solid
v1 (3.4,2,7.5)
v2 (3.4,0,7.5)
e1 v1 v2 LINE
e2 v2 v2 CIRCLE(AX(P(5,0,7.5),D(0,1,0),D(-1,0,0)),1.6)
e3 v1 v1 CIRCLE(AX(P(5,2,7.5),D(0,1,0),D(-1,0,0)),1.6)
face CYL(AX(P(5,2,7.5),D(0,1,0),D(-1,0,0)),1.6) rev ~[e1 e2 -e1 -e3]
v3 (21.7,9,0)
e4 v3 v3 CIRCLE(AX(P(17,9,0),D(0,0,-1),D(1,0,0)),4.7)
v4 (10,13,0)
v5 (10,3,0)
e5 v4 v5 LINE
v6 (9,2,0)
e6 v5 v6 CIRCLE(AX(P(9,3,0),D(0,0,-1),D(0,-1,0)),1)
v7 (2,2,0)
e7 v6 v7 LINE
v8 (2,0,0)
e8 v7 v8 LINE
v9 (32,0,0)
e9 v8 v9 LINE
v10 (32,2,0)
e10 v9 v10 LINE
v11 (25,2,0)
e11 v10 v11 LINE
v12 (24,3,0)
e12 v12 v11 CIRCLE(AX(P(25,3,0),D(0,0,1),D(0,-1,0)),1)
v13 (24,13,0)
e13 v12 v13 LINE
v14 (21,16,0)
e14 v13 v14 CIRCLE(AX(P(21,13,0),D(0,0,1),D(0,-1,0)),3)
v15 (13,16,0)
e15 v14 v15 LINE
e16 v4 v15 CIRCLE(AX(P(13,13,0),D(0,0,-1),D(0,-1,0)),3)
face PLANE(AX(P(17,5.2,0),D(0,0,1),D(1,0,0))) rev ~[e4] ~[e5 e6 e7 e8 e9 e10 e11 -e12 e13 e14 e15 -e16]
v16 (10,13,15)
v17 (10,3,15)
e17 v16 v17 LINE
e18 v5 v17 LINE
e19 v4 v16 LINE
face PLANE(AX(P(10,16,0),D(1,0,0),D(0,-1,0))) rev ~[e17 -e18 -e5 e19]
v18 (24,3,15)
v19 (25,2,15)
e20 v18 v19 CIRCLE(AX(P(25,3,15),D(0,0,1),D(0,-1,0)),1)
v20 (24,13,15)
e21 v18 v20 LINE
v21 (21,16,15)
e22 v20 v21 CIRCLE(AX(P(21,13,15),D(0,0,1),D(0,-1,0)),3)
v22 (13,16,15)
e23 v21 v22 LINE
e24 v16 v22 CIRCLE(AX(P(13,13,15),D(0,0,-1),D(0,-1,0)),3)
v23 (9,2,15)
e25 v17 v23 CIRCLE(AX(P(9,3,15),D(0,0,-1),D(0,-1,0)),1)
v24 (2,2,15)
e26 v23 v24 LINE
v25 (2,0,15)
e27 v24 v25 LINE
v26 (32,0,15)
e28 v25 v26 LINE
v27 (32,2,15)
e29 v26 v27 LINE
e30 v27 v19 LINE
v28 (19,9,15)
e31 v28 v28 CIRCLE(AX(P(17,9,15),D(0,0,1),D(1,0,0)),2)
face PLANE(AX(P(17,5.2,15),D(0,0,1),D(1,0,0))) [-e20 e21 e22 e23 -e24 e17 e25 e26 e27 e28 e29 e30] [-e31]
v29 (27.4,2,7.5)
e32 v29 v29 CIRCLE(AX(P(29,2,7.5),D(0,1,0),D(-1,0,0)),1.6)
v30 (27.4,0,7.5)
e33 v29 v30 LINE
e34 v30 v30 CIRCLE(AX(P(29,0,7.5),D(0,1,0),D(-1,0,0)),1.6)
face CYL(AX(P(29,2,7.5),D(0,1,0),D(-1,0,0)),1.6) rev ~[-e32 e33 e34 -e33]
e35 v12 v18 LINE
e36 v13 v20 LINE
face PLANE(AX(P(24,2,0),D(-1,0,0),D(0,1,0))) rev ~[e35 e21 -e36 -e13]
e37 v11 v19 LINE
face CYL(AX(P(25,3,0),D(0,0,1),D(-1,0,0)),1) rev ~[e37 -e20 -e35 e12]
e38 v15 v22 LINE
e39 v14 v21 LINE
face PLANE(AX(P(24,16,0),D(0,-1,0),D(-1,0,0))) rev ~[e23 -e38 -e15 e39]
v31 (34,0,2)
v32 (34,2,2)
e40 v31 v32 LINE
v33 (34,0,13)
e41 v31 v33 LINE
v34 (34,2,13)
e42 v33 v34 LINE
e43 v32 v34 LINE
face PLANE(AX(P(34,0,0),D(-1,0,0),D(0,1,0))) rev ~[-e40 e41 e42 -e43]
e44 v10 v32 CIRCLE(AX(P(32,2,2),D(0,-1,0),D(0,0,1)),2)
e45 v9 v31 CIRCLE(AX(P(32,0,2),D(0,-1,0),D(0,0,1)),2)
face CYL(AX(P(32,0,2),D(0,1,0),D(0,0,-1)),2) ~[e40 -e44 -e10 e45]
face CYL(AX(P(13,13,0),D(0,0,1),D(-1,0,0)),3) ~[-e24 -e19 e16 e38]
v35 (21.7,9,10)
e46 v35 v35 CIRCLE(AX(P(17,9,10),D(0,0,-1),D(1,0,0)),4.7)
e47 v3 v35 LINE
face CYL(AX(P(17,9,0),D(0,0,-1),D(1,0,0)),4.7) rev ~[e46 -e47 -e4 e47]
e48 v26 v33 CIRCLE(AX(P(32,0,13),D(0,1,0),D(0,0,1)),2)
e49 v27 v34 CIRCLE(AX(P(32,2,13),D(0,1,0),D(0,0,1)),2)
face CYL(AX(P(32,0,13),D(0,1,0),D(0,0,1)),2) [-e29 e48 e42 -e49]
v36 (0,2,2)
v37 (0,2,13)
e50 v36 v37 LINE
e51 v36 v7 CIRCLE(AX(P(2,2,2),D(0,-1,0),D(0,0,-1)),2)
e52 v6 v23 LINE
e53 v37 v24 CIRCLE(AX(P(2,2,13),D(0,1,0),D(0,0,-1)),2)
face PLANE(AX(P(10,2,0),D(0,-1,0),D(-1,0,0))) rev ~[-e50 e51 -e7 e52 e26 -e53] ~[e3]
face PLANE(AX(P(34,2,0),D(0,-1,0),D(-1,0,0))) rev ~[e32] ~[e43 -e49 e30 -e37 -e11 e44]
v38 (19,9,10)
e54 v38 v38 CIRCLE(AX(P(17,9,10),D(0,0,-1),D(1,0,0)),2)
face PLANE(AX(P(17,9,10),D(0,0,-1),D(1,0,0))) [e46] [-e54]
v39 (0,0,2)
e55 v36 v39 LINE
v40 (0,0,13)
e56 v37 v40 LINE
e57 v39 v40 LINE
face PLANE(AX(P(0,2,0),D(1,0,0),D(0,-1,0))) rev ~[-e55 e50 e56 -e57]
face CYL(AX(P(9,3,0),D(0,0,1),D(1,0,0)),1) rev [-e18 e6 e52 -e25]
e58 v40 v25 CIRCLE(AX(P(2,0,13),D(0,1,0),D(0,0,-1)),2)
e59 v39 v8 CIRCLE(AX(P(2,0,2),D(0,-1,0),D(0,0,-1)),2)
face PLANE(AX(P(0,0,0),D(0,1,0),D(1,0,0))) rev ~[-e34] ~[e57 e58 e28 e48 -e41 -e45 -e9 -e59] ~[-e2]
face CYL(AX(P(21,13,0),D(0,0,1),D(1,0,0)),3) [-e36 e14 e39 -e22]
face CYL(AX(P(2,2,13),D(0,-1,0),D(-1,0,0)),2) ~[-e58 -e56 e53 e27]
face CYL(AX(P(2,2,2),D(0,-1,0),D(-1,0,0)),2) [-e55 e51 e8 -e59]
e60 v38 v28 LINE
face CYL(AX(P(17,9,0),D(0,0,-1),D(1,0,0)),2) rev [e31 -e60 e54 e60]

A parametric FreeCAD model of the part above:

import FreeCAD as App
import Part
import Sketcher

V = App.Vector


def edges_at(feature, points):
    """Names of the edges that pass closest to the given points."""
    edges = feature.Shape.Edges
    near = lambda p: min(range(len(edges)), key=lambda i: edges[i].distToShape(Part.Vertex(*p))[0])
    return sorted({f"Edge{near(p) + 1}" for p in points})


def add_polygon(sketch, points):
    """Adds a closed chain of lines whose ends are joined by coincident constraints."""
    first, n = sketch.GeometryCount, len(points)
    for a, b in zip(points, points[1:] + points[:1]):
        sketch.addGeometry(Part.LineSegment(App.Vector(*a, 0), App.Vector(*b, 0)), False)
    for i in range(n):
        sketch.addConstraint(Sketcher.Constraint("Coincident", first + i, 2, first + (i + 1) % n, 1))

doc = App.newDocument("Part")
body = doc.addObject("PartDesign::Body", "Body")

# Sketch on XY plane
sketch1 = body.newObject("Sketcher::SketchObject", "Sketch")
sketch1.AttachmentSupport = (doc.getObject("XY_Plane"), [""])
sketch1.MapMode = "FlatFace"
add_polygon(sketch1, [(0, 0), (34, 0), (34, 2), (24, 2), (24, 16), (10, 16), (10, 2), (0, 2)])  # lines 0-7
sketch1.addGeometry(Part.Circle(V(17, 9, 0), V(0, 0, 1), 2), False)  # 8
sketch1.addConstraint([
    Sketcher.Constraint("Horizontal", 0),
    Sketcher.Constraint("Vertical", 1),
    Sketcher.Constraint("Horizontal", 2),
    Sketcher.Constraint("Vertical", 3),
    Sketcher.Constraint("Horizontal", 4),
    Sketcher.Constraint("Vertical", 5),
    Sketcher.Constraint("Horizontal", 6),
    Sketcher.Constraint("Vertical", 7),
    Sketcher.Constraint("Coincident", 7, 2, -1, 1),
    Sketcher.Constraint("Horizontal", 2, 2, 5, 2),
    Sketcher.Constraint("Equal", 2, 6),
    Sketcher.Constraint("Equal", 4, 3),
    Sketcher.Constraint("Diameter", 8, 4.0),
    Sketcher.Constraint("DistanceX", 0, 1, 0, 2, 34.0),
    Sketcher.Constraint("DistanceX", 2, 2, 2, 1, 10.0),
    Sketcher.Constraint("DistanceY", 1, 1, 1, 2, 2.0),
    Sketcher.Constraint("DistanceX", -1, 1, 8, 3, 17.0),
    Sketcher.Constraint("DistanceY", -1, 1, 8, 3, 9.0),
])
pad1 = body.newObject("PartDesign::Pad", "Pad")
pad1.Profile = sketch1
pad1.Length = 15

# Sketch on XY plane
sketch2 = body.newObject("Sketcher::SketchObject", "Sketch001")
sketch2.AttachmentSupport = (doc.getObject("XY_Plane"), [""])
sketch2.MapMode = "FlatFace"
sketch2.addGeometry(Part.Circle(V(17, 9, 0), V(0, 0, 1), 4.7), False)
sketch2.addConstraint([
    Sketcher.Constraint("Diameter", 0, 9.4),
    Sketcher.Constraint("DistanceX", -1, 1, 0, 3, 17.0),
    Sketcher.Constraint("DistanceY", -1, 1, 0, 3, 9.0),
])
pocket1 = body.newObject("PartDesign::Pocket", "Pocket")
pocket1.Profile = sketch2
pocket1.Length = 10
pocket1.Reversed = True

# Sketch on XZ plane
sketch3 = body.newObject("Sketcher::SketchObject", "Sketch002")
sketch3.AttachmentSupport = (doc.getObject("XZ_Plane"), [""])
sketch3.MapMode = "FlatFace"
sketch3.AttachmentOffset = App.Placement(V(0, 0, -2), App.Rotation())
sketch3.addGeometry([
    Part.Circle(V(29, 7.5, 0), V(0, 0, 1), 1.6),
    Part.Circle(V(5, 7.5, 0), V(0, 0, 1), 1.6),
], False)
sketch3.addConstraint([
    Sketcher.Constraint("Equal", 0, 1),
    Sketcher.Constraint("Horizontal", 0, 3, 1, 3),
    Sketcher.Constraint("Diameter", 0, 3.2),
    Sketcher.Constraint("DistanceX", -1, 1, 0, 3, 29.0),
    Sketcher.Constraint("DistanceX", -1, 1, 1, 3, 5.0),
    Sketcher.Constraint("DistanceY", -1, 1, 0, 3, 7.5),
])
pocket2 = body.newObject("PartDesign::Pocket", "Pocket001")
pocket2.Profile = sketch3
pocket2.Type = "ThroughAll"
pocket2.Reversed = True
doc.recompute()

fillet = body.newObject("PartDesign::Fillet", "Fillet")
fillet.Base = (pocket2, edges_at(pocket2, [
    (34, 1, 15),
    (34, 1, 0),
    (0, 1, 15),
    (0, 1, 0),
]))
fillet.Radius = 2
doc.recompute()

fillet2 = body.newObject("PartDesign::Fillet", "Fillet001")
fillet2.Base = (fillet, edges_at(fillet, [(24, 16, 7.5), (10, 16, 7.5)]))
fillet2.Radius = 3
doc.recompute()

fillet3 = body.newObject("PartDesign::Fillet", "Fillet002")
fillet3.Base = (fillet2, edges_at(fillet2, [(24, 2, 7.5), (10, 2, 7.5)]))
fillet3.Radius = 1

doc.recompute()
